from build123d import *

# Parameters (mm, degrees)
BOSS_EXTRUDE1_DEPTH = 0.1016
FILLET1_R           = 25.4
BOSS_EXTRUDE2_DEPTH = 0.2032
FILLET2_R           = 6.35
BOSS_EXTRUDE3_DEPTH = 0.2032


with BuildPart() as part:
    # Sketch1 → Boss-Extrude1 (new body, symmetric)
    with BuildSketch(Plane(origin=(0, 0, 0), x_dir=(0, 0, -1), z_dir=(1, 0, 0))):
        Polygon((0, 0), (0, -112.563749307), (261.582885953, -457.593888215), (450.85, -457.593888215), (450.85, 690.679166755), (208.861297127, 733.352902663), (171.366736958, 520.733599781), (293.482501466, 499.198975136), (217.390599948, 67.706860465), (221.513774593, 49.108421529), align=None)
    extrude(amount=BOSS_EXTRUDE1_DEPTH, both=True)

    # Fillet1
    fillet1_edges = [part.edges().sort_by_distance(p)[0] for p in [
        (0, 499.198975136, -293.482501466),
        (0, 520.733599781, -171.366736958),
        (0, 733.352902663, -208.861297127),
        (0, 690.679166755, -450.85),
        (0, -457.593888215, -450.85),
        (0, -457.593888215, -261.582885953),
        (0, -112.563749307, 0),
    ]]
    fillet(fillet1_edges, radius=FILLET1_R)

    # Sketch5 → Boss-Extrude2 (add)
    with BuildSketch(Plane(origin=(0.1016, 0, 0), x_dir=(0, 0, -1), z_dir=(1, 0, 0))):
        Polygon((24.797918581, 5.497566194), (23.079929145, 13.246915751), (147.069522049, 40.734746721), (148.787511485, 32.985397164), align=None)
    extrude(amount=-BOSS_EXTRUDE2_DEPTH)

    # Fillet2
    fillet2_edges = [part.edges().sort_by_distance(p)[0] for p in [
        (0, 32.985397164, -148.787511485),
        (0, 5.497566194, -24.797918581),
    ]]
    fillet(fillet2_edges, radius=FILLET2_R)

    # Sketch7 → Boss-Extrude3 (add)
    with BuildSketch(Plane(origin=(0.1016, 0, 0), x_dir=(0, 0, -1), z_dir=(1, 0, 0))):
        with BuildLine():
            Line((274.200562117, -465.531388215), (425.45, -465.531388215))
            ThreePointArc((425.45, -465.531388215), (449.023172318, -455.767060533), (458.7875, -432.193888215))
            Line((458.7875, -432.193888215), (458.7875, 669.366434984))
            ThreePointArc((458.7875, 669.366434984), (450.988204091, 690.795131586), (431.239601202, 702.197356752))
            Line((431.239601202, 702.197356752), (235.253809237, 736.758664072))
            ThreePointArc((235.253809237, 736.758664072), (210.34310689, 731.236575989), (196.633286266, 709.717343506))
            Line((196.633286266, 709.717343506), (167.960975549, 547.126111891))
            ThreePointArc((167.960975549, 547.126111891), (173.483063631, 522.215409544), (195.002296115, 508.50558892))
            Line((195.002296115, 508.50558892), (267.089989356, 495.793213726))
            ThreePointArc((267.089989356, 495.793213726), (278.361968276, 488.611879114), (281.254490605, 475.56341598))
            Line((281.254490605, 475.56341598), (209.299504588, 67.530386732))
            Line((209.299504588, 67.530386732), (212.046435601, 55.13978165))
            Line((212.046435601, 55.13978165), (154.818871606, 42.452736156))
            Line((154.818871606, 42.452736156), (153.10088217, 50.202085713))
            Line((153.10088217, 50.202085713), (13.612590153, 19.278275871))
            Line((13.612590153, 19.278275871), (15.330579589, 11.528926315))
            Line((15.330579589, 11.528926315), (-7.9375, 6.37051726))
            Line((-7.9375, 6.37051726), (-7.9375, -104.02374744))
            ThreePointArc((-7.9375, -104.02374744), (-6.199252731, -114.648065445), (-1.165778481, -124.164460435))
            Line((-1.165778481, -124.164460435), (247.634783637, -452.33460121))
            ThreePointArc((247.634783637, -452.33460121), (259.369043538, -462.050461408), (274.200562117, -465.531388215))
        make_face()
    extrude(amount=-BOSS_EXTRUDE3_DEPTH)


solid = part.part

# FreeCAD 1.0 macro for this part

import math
import FreeCAD as App
import Part
import Sketcher
from FreeCAD import Vector
Q = App.Units.Quantity


def edges_at(feature, points):
    """Names of the edges that pass closest to the given points."""
    edges = feature.Shape.Edges
    near = lambda p: min(range(len(edges)), key=lambda i: edges[i].distToShape(Part.Vertex(*p))[0])
    return sorted({f"Edge{near(p) + 1}" for p in points})


def add_polygon(sketch, points):
    """Adds a closed chain of lines whose ends are joined by coincident constraints."""
    first, n = sketch.GeometryCount, len(points)
    for a, b in zip(points, points[1:] + points[:1]):
        sketch.addGeometry(Part.LineSegment(App.Vector(*a, 0), App.Vector(*b, 0)), False)
    for i in range(n):
        sketch.addConstraint(Sketcher.Constraint("Coincident", first + i, 2, first + (i + 1) % n, 1))

doc = App.newDocument("Part")
params = doc.addObject("Spreadsheet::Sheet", "Params")
for row, (alias, value) in enumerate([
    ("sketch1_length", "8.5 in"),
    ("sketch1_length2", "17.25 in"),
    ("sketch1_length3", "0.75 in"),
    ("pad1_length", "0.008 in"),
    ("fillet_radius", "1 in"),
    ("sketch2_length", "5 in"),
    ("sketch2_length2", "0.3125 in"),
    ("pad2_length", "0.008 in"),
    ("fillet2_radius", "0.25 in"),
    ("sketch3_radius", "1.3125 in"),
    ("sketch3_radius2", "0.6875 in"),
    ("sketch3_length", "6.5 in"),
    ("sketch3_length2", "0.3125 in"),
    ("sketch3_length3", "5.625 in"),
    ("pad3_length", "0.008 in"),
], start=1):
    params.set(f"A{row}", alias)
    params.set(f"B{row}", "=" + value)
    params.setAlias(f"B{row}", alias)

body = doc.addObject("PartDesign::Body", "Body")

# Sketch on YZ plane
sketch1 = doc.addObject("Sketcher::SketchObject", "Sketch")
body.addObject(sketch1)
sketch1.AttachmentSupport = (doc.YZ_Plane, [""])
sketch1.MapMode = "FlatFace"
add_polygon(sketch1, [(0, 0), (-113, 0), (-458, -262), (-458, -451), (691, -451), (733, -209), (521, -171), (499, -293), (68, -217), (49, -222)])  # lines 0-9
sketch1.addConstraint(Sketcher.Constraint("Horizontal", 0))
sketch1.addConstraint(Sketcher.Constraint("Vertical", 2))
sketch1.addConstraint(Sketcher.Constraint("Horizontal", 3))
sketch1.addConstraint(Sketcher.Constraint("Coincident", 9, 2, -1, 1))
sketch1.addConstraint(Sketcher.Constraint("Perpendicular", 4, 5))
sketch1.addConstraint(Sketcher.Constraint("Perpendicular", 5, 6))
sketch1.addConstraint(Sketcher.Constraint("Perpendicular", 6, 7))
sketch1.addConstraint(Sketcher.Constraint("Perpendicular", 8, 9))
sketch1.addConstraint(Sketcher.Constraint("Distance", 5, Q("8.5 in")))
sketch1.addConstraint(Sketcher.Constraint("Angle", 8, Q("-167.5 deg")))
sketch1.addConstraint(Sketcher.Constraint("Distance", 7, Q("17.25 in")))
sketch1.addConstraint(Sketcher.Constraint("Distance", 8, Q("0.75 in")))
sketch1.addConstraint(Sketcher.Constraint("DistanceY", 2, 2, -1, 1, Q("17.75 in")))
sketch1.addConstraint(Sketcher.Constraint("Distance", 6, 124.0))
sketch1.addConstraint(Sketcher.Constraint("DistanceX", 0, 2, 0, 1, 112.563749))
sketch1.addConstraint(Sketcher.Constraint("DistanceX", -1, 1, 5, 2, 520.7336))
sketch1.addConstraint(Sketcher.Constraint("DistanceY", 6, 2, -1, 1, 293.482501))
sketch1.addConstraint(Sketcher.Constraint("Distance", 1, 432.97968))
sketch1.addConstraint(Sketcher.Constraint("DistanceX", 3, 1, 3, 2, 1148.273055))
sketch1.setExpression("Constraints[18]", "Params.sketch1_length")
sketch1.setExpression("Constraints[20]", "Params.sketch1_length2")
sketch1.setExpression("Constraints[21]", "Params.sketch1_length3")
pad1 = doc.addObject("PartDesign::Pad", "Pad")
body.addObject(pad1)
pad1.Profile = sketch1
pad1.setExpression("Length", "Params.pad1_length")
pad1.Midplane = True
doc.recompute()

fillet = doc.addObject("PartDesign::Fillet", "Fillet")
body.addObject(fillet)
fillet.Base = (pad1, edges_at(pad1, [
    (0, 499.199, -293.483),
    (0, 520.734, -171.367),
    (0, 733.353, -208.861),
    (0, 690.679, -450.85),
    (0, -457.594, -450.85),
    (0, -457.594, -261.583),
    (0, -112.564, 0),
]))
fillet.setExpression("Radius", "Params.fillet_radius")

# Sketch on YZ plane
sketch2 = doc.addObject("Sketcher::SketchObject", "Sketch001")
body.addObject(sketch2)
sketch2.AttachmentSupport = (doc.YZ_Plane, [""])
sketch2.MapMode = "FlatFace"
sketch2.AttachmentOffset = App.Placement(Vector(0, 0, 0.004 * 25.4), App.Rotation())
add_polygon(sketch2, [(13, -23), (5, -25), (33, -149), (41, -147)])  # lines 0-3
sketch2.addConstraint(Sketcher.Constraint("Perpendicular", 0, 1))
sketch2.addConstraint(Sketcher.Constraint("Perpendicular", 1, 2))
sketch2.addConstraint(Sketcher.Constraint("Perpendicular", 2, 3))
sketch2.addConstraint(Sketcher.Constraint("Distance", 1, Q("5 in")))
sketch2.addConstraint(Sketcher.Constraint("Angle", 0, Q("-167.5 deg")))
sketch2.addConstraint(Sketcher.Constraint("Distance", 0, Q("0.3125 in")))
sketch2.addConstraint(Sketcher.Constraint("DistanceY", 0, 2, -1, 1, 24.797919))
sketch2.addConstraint(Sketcher.Constraint("DistanceX", -1, 1, 0, 2, 5.497566))
sketch2.setExpression("Constraints[7]", "Params.sketch2_length")
sketch2.setExpression("Constraints[9]", "Params.sketch2_length2")
pad2 = doc.addObject("PartDesign::Pad", "Pad001")
body.addObject(pad2)
pad2.Profile = sketch2
pad2.setExpression("Length", "Params.pad2_length")
pad2.Reversed = True
doc.recompute()

fillet2 = doc.addObject("PartDesign::Fillet", "Fillet001")
body.addObject(fillet2)
fillet2.Base = (pad2, edges_at(pad2, [(0, 32.985, -148.788), (0, 5.498, -24.798)]))
fillet2.setExpression("Radius", "Params.fillet2_radius")

# Sketch on YZ plane
sketch3 = doc.addObject("Sketcher::SketchObject", "Sketch002")
body.addObject(sketch3)
sketch3.AttachmentSupport = (doc.YZ_Plane, [""])
sketch3.MapMode = "FlatFace"
sketch3.AttachmentOffset = App.Placement(Vector(0, 0, 0.004 * 25.4), App.Rotation())
sketch3.addGeometry(Part.LineSegment(Vector(-466, -274, 0), Vector(-466, -425, 0)), False)
sketch3.addGeometry(Part.ArcOfCircle(Part.Circle(Vector(-432, -425, 0), Vector(0, 0, 1), 33), math.radians(180), math.radians(270)), False)
sketch3.addGeometry(Part.LineSegment(Vector(-432, -459, 0), Vector(669, -459, 0)), False)
sketch3.addGeometry(Part.ArcOfCircle(Part.Circle(Vector(669, -425, 0), Vector(0, 0, 1), 33), math.radians(-90), math.radians(-10)), False)
sketch3.addGeometry(Part.LineSegment(Vector(702, -431, 0), Vector(737, -235, 0)), False)
sketch3.addGeometry(Part.ArcOfCircle(Part.Circle(Vector(704, -229, 0), Vector(0, 0, 1), 33), math.radians(-10), math.radians(80)), False)
sketch3.addGeometry(Part.LineSegment(Vector(710, -197, 0), Vector(547, -168, 0)), False)
sketch3.addGeometry(Part.ArcOfCircle(Part.Circle(Vector(541, -201, 0), Vector(0, 0, 1), 33), math.radians(80), math.radians(170)), False)
sketch3.addGeometry(Part.LineSegment(Vector(509, -195, 0), Vector(496, -267, 0)), False)
sketch3.addGeometry(Part.ArcOfCircle(Part.Circle(Vector(479, -264, 0), Vector(0, 0, 1), 17), math.radians(-100), math.radians(-10)), False)
sketch3.addGeometry(Part.LineSegment(Vector(476, -281, 0), Vector(68, -209, 0)), False)
sketch3.addGeometry(Part.LineSegment(Vector(68, -209, 0), Vector(55, -212, 0)), False)
sketch3.addGeometry(Part.LineSegment(Vector(55, -212, 0), Vector(42, -155, 0)), False)
sketch3.addGeometry(Part.LineSegment(Vector(42, -155, 0), Vector(50, -153, 0)), False)
sketch3.addGeometry(Part.LineSegment(Vector(50, -153, 0), Vector(19, -14, 0)), False)
sketch3.addGeometry(Part.LineSegment(Vector(19, -14, 0), Vector(12, -15, 0)), False)
sketch3.addGeometry(Part.LineSegment(Vector(12, -15, 0), Vector(6, 8, 0)), False)
sketch3.addGeometry(Part.LineSegment(Vector(6, 8, 0), Vector(-104, 8, 0)), False)
sketch3.addGeometry(Part.ArcOfCircle(Part.Circle(Vector(-104, -25, 0), Vector(0, 0, 1), 33), math.radians(90), math.radians(127)), False)
sketch3.addGeometry(Part.LineSegment(Vector(-124, 1, 0), Vector(-452, -248, 0)), False)
sketch3.addGeometry(Part.ArcOfCircle(Part.Circle(Vector(-432, -274, 0), Vector(0, 0, 1), 33), math.radians(127), math.radians(180)), False)
sketch3.addConstraint(Sketcher.Constraint("Tangent", 0, 2, 1, 1))
sketch3.addConstraint(Sketcher.Constraint("Tangent", 1, 2, 2, 1))
sketch3.addConstraint(Sketcher.Constraint("Tangent", 2, 2, 3, 1))
sketch3.addConstraint(Sketcher.Constraint("Tangent", 3, 2, 4, 1))
sketch3.addConstraint(Sketcher.Constraint("Tangent", 4, 2, 5, 1))
sketch3.addConstraint(Sketcher.Constraint("Tangent", 5, 2, 6, 1))
sketch3.addConstraint(Sketcher.Constraint("Tangent", 6, 2, 7, 1))
sketch3.addConstraint(Sketcher.Constraint("Tangent", 7, 2, 8, 1))
sketch3.addConstraint(Sketcher.Constraint("Tangent", 8, 2, 9, 2))
sketch3.addConstraint(Sketcher.Constraint("Tangent", 9, 1, 10, 1))
sketch3.addConstraint(Sketcher.Constraint("Coincident", 10, 2, 11, 1))
sketch3.addConstraint(Sketcher.Constraint("Coincident", 11, 2, 12, 1))
sketch3.addConstraint(Sketcher.Constraint("Coincident", 12, 2, 13, 1))
sketch3.addConstraint(Sketcher.Constraint("Coincident", 13, 2, 14, 1))
sketch3.addConstraint(Sketcher.Constraint("Coincident", 14, 2, 15, 1))
sketch3.addConstraint(Sketcher.Constraint("Coincident", 15, 2, 16, 1))
sketch3.addConstraint(Sketcher.Constraint("Coincident", 16, 2, 17, 1))
sketch3.addConstraint(Sketcher.Constraint("Tangent", 17, 2, 18, 1))
sketch3.addConstraint(Sketcher.Constraint("Tangent", 18, 2, 19, 1))
sketch3.addConstraint(Sketcher.Constraint("Tangent", 19, 2, 20, 1))
sketch3.addConstraint(Sketcher.Constraint("Tangent", 20, 2, 0, 1))
sketch3.addConstraint(Sketcher.Constraint("Vertical", 0))
sketch3.addConstraint(Sketcher.Constraint("Horizontal", 2))
sketch3.addConstraint(Sketcher.Constraint("Horizontal", 17))
sketch3.addConstraint(Sketcher.Constraint("Equal", 1, 3))
sketch3.addConstraint(Sketcher.Constraint("Equal", 3, 5))
sketch3.addConstraint(Sketcher.Constraint("Equal", 5, 7))
sketch3.addConstraint(Sketcher.Constraint("Equal", 7, 18))
sketch3.addConstraint(Sketcher.Constraint("Equal", 18, 20))
sketch3.addConstraint(Sketcher.Constraint("Perpendicular", 4, 6))
sketch3.addConstraint(Sketcher.Constraint("Perpendicular", 6, 8))
sketch3.addConstraint(Sketcher.Constraint("Perpendicular", 8, 10))
sketch3.addConstraint(Sketcher.Constraint("Perpendicular", 11, 12))
sketch3.addConstraint(Sketcher.Constraint("Perpendicular", 12, 13))
sketch3.addConstraint(Sketcher.Constraint("Perpendicular", 13, 14))
sketch3.addConstraint(Sketcher.Constraint("Perpendicular", 14, 15))
sketch3.addConstraint(Sketcher.Constraint("Perpendicular", 15, 16))
sketch3.addConstraint(Sketcher.Constraint("Equal", 13, 15))
sketch3.addConstraint(Sketcher.Constraint("DistanceY", 18, 3, -1, 1, Q("1 in")))
sketch3.addConstraint(Sketcher.Constraint("Radius", 1, Q("1.3125 in")))
sketch3.addConstraint(Sketcher.Constraint("Radius", 9, Q("0.6875 in")))
sketch3.addConstraint(Sketcher.Constraint("Distance", 6, Q("6.5 in")))
sketch3.addConstraint(Sketcher.Constraint("Angle", 11, Q("-167.5 deg")))
sketch3.addConstraint(Sketcher.Constraint("DistanceY", 1, 3, -1, 1, Q("16.75 in")))
sketch3.addConstraint(Sketcher.Constraint("Distance", 13, Q("0.3125 in")))
sketch3.addConstraint(Sketcher.Constraint("Distance", 14, Q("5.625 in")))
sketch3.addConstraint(Sketcher.Constraint("Distance", 8, 73.2))
sketch3.addConstraint(Sketcher.Constraint("Distance", 19, 411.822002))
sketch3.addConstraint(Sketcher.Constraint("DistanceX", 19, 2, -1, 1, 452.334601))
sketch3.addConstraint(Sketcher.Constraint("DistanceX", 1, 3, 7, 3, 973.530399))
sketch3.addConstraint(Sketcher.Constraint("DistanceY", 4, 2, 5, 3, 5.789601))
sketch3.addConstraint(Sketcher.Constraint("DistanceX", 13, 2, 10, 2, 17.328301))
sketch3.addConstraint(Sketcher.Constraint("Distance", 12, 58.617021))
sketch3.addConstraint(Sketcher.Constraint("DistanceX", 2, 1, 2, 2, 1101.560323))
sketch3.addConstraint(Sketcher.Constraint("DistanceX", 17, 2, 17, 1, 110.394265))
sketch3.addConstraint(Sketcher.Constraint("DistanceY", 0, 2, 0, 1, 151.249438))
sketch3.setExpression("Constraints[39]", "Params.sketch3_radius")
sketch3.setExpression("Constraints[40]", "Params.sketch3_radius2")
sketch3.setExpression("Constraints[41]", "Params.sketch3_length")
sketch3.setExpression("Constraints[44]", "Params.sketch3_length2")
sketch3.setExpression("Constraints[45]", "Params.sketch3_length3")
pad3 = doc.addObject("PartDesign::Pad", "Pad002")
body.addObject(pad3)
pad3.Profile = sketch3
pad3.setExpression("Length", "Params.pad3_length")
pad3.Reversed = True

doc.recompute()
